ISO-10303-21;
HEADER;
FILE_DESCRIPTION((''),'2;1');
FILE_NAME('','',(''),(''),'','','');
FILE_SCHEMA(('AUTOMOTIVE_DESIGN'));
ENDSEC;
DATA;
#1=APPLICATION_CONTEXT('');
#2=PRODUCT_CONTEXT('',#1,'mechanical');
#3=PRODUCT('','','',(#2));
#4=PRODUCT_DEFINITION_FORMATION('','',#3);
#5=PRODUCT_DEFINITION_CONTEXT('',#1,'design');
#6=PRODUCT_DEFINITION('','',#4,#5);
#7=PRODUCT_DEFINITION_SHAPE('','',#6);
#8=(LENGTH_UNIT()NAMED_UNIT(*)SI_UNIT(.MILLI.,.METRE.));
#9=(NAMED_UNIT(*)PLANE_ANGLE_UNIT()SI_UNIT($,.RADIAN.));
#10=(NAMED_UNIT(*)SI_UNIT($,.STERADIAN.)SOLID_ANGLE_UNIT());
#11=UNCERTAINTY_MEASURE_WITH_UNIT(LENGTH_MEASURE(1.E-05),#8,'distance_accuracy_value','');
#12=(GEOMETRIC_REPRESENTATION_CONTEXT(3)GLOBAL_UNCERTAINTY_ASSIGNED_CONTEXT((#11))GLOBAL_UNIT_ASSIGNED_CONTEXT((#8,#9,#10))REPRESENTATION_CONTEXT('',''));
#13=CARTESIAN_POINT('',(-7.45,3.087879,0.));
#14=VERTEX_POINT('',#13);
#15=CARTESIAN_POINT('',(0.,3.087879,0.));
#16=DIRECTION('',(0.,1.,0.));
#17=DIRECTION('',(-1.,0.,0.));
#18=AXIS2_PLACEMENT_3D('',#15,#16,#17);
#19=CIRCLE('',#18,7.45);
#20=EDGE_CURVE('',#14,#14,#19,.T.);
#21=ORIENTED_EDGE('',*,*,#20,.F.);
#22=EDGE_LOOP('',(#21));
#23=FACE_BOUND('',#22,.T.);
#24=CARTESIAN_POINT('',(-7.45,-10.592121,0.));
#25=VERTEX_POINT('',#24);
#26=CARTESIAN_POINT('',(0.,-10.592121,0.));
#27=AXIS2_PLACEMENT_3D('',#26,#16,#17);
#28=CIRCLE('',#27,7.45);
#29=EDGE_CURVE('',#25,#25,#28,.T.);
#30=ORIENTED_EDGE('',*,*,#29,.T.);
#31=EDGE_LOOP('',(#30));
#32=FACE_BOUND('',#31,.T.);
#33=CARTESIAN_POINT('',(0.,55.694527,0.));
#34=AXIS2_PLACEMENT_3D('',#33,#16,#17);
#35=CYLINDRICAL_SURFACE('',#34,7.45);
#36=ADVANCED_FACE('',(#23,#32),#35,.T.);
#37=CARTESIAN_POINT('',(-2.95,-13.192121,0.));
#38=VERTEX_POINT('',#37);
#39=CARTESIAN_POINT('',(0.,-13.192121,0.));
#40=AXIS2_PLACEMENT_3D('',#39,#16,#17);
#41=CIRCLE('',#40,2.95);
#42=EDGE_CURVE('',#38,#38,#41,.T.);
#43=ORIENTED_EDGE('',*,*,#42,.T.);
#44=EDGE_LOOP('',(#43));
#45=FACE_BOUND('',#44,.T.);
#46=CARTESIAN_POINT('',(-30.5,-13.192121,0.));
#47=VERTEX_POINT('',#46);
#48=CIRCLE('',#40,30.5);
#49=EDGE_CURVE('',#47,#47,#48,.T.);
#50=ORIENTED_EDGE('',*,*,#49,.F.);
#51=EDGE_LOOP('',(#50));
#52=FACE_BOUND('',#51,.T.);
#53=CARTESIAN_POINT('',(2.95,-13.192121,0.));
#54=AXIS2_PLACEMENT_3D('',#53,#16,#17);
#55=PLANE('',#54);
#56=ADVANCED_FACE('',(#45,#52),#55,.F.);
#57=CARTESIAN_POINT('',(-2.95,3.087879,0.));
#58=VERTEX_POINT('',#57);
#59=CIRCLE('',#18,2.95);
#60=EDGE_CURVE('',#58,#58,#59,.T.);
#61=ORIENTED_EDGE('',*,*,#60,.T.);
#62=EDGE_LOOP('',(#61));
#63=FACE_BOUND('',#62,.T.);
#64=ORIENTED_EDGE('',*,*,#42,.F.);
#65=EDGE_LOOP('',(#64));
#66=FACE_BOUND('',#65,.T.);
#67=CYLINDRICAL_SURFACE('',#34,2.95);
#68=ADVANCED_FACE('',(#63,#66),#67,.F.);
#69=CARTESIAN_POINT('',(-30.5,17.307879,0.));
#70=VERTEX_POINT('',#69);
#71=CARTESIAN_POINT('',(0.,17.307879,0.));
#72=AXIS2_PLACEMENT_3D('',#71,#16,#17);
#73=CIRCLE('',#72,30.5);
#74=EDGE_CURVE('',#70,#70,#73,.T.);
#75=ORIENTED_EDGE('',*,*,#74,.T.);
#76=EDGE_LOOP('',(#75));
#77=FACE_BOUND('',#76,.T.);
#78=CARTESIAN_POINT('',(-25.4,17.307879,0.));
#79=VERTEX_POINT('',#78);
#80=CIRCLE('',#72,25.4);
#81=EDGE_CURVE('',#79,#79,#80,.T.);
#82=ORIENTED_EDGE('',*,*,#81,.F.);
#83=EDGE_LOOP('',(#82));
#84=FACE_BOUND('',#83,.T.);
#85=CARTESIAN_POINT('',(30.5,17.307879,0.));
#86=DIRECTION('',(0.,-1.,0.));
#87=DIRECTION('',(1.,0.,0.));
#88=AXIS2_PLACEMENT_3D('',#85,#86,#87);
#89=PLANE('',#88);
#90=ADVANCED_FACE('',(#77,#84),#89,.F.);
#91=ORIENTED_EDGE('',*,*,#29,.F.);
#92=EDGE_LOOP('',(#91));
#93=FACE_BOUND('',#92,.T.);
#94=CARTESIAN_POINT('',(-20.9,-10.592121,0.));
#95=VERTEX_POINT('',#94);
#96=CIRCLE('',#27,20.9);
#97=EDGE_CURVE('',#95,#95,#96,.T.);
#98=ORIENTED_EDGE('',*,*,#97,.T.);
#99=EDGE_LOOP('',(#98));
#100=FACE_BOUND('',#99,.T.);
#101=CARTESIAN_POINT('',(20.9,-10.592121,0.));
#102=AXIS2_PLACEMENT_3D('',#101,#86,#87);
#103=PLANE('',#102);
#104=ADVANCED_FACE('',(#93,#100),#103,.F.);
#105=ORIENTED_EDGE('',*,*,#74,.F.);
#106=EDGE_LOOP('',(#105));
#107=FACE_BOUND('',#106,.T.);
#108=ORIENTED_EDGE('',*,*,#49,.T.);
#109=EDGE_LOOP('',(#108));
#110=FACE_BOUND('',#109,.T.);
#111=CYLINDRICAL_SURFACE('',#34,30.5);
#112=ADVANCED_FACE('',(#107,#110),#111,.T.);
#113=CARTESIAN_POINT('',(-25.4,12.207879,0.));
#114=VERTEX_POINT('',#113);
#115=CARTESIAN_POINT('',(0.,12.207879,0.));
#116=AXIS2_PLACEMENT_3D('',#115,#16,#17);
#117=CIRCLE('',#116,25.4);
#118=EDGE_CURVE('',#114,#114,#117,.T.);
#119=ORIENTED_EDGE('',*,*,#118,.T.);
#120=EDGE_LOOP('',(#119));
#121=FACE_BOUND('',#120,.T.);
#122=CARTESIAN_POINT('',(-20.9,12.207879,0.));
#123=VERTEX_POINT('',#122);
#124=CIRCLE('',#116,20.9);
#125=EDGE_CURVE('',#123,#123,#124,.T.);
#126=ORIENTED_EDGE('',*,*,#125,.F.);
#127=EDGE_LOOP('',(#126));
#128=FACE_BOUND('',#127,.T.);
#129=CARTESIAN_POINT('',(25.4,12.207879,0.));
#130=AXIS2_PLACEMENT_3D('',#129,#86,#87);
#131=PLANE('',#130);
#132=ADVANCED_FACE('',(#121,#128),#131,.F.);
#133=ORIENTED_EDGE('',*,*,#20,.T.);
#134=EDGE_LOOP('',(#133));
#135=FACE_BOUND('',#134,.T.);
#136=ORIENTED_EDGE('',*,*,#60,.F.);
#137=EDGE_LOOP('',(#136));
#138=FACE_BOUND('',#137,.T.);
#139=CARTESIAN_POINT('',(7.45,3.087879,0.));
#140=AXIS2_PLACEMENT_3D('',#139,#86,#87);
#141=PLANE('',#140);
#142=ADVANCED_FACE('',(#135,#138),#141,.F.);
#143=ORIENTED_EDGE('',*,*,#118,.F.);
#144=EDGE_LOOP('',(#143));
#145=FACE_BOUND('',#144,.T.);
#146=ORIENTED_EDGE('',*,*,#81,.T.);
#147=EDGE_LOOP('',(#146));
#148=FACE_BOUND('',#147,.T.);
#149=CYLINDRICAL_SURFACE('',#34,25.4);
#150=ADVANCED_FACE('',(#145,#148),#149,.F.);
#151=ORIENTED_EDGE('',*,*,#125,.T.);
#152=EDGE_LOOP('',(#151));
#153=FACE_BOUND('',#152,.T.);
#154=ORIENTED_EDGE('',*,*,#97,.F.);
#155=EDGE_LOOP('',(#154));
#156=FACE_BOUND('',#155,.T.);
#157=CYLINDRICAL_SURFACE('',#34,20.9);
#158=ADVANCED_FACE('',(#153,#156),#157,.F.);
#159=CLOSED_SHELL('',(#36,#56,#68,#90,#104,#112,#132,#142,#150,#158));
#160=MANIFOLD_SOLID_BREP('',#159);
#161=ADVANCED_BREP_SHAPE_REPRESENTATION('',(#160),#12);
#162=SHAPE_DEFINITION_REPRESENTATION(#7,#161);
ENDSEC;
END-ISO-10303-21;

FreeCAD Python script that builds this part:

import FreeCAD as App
import Part
import Sketcher
from FreeCAD import Vector
Q = App.Units.Quantity

doc = App.newDocument("Part")
body = doc.addObject("PartDesign::Body", "Body")

# Sketch on XY plane
sketch1 = body.newObject("Sketcher::SketchObject", "Sketch")
sketch1.AttachmentSupport = (doc.getObject("XY_Plane"), [""])
sketch1.MapMode = "FlatFace"
sketch1.addGeometry([
    Part.LineSegment(Vector(20.9, -10.6, 0), Vector(7.5, -10.6, 0)),  # 0
    Part.LineSegment(Vector(7.5, -10.6, 0), Vector(7.5, 3.1, 0)),  # 1
    Part.LineSegment(Vector(7.5, 3.1, 0), Vector(3, 3.1, 0)),  # 2
    Part.LineSegment(Vector(3, 3.1, 0), Vector(3, -13.2, 0)),  # 3
    Part.LineSegment(Vector(3, -13.2, 0), Vector(30.5, -13.2, 0)),  # 4
    Part.LineSegment(Vector(30.5, -13.2, 0), Vector(30.5, 17.3, 0)),  # 5
    Part.LineSegment(Vector(30.5, 17.3, 0), Vector(25.4, 17.3, 0)),  # 6
    Part.LineSegment(Vector(25.4, 17.3, 0), Vector(25.4, 12.2, 0)),  # 7
    Part.LineSegment(Vector(25.4, 12.2, 0), Vector(20.9, 12.2, 0)),  # 8
    Part.LineSegment(Vector(20.9, 12.2, 0), Vector(20.9, -10.6, 0)),  # 9
], False)
sketch1.addConstraint([
    Sketcher.Constraint("Coincident", 0, 2, 1, 1),
    Sketcher.Constraint("Coincident", 1, 2, 2, 1),
    Sketcher.Constraint("Coincident", 2, 2, 3, 1),
    Sketcher.Constraint("Coincident", 3, 2, 4, 1),
    Sketcher.Constraint("Coincident", 4, 2, 5, 1),
    Sketcher.Constraint("Coincident", 5, 2, 6, 1),
    Sketcher.Constraint("Coincident", 6, 2, 7, 1),
    Sketcher.Constraint("Coincident", 7, 2, 8, 1),
    Sketcher.Constraint("Coincident", 8, 2, 9, 1),
    Sketcher.Constraint("Coincident", 9, 2, 0, 1),
    Sketcher.Constraint("Horizontal", 0),
    Sketcher.Constraint("Vertical", 1),
    Sketcher.Constraint("Horizontal", 2),
    Sketcher.Constraint("Vertical", 3),
    Sketcher.Constraint("Horizontal", 4),
    Sketcher.Constraint("Vertical", 5),
    Sketcher.Constraint("Horizontal", 6),
    Sketcher.Constraint("Vertical", 7),
    Sketcher.Constraint("Horizontal", 8),
    Sketcher.Constraint("Vertical", 9),
    Sketcher.Constraint("Equal", 2, 8),
    Sketcher.Constraint("Equal", 6, 7),
    Sketcher.Constraint("DistanceX", 2, 2, 2, 1, Q("4.5 mm")),
    Sketcher.Constraint("DistanceX", 6, 2, 6, 1, Q("5.1 mm")),
    Sketcher.Constraint("DistanceY", 5, 1, 5, 2, Q("30.5 mm")),
    Sketcher.Constraint("DistanceY", 9, 2, 9, 1, Q("22.8 mm")),
    Sketcher.Constraint("DistanceX", 0, 2, 0, 1, Q("13.45 mm")),
    Sketcher.Constraint("DistanceY", 1, 1, 1, 2, Q("13.68 mm")),
    Sketcher.Constraint("DistanceX", -1, 1, 4, 2, Q("30.5 mm")),
    Sketcher.Constraint("DistanceY", 0, 2, -1, 1, Q("10.592121 mm")),
])
revolution = body.newObject("PartDesign::Revolution", "Revolution")
revolution.Profile = sketch1
revolution.ReferenceAxis = (sketch1, ["V_Axis"])
revolution.Angle = 360

doc.recompute()
